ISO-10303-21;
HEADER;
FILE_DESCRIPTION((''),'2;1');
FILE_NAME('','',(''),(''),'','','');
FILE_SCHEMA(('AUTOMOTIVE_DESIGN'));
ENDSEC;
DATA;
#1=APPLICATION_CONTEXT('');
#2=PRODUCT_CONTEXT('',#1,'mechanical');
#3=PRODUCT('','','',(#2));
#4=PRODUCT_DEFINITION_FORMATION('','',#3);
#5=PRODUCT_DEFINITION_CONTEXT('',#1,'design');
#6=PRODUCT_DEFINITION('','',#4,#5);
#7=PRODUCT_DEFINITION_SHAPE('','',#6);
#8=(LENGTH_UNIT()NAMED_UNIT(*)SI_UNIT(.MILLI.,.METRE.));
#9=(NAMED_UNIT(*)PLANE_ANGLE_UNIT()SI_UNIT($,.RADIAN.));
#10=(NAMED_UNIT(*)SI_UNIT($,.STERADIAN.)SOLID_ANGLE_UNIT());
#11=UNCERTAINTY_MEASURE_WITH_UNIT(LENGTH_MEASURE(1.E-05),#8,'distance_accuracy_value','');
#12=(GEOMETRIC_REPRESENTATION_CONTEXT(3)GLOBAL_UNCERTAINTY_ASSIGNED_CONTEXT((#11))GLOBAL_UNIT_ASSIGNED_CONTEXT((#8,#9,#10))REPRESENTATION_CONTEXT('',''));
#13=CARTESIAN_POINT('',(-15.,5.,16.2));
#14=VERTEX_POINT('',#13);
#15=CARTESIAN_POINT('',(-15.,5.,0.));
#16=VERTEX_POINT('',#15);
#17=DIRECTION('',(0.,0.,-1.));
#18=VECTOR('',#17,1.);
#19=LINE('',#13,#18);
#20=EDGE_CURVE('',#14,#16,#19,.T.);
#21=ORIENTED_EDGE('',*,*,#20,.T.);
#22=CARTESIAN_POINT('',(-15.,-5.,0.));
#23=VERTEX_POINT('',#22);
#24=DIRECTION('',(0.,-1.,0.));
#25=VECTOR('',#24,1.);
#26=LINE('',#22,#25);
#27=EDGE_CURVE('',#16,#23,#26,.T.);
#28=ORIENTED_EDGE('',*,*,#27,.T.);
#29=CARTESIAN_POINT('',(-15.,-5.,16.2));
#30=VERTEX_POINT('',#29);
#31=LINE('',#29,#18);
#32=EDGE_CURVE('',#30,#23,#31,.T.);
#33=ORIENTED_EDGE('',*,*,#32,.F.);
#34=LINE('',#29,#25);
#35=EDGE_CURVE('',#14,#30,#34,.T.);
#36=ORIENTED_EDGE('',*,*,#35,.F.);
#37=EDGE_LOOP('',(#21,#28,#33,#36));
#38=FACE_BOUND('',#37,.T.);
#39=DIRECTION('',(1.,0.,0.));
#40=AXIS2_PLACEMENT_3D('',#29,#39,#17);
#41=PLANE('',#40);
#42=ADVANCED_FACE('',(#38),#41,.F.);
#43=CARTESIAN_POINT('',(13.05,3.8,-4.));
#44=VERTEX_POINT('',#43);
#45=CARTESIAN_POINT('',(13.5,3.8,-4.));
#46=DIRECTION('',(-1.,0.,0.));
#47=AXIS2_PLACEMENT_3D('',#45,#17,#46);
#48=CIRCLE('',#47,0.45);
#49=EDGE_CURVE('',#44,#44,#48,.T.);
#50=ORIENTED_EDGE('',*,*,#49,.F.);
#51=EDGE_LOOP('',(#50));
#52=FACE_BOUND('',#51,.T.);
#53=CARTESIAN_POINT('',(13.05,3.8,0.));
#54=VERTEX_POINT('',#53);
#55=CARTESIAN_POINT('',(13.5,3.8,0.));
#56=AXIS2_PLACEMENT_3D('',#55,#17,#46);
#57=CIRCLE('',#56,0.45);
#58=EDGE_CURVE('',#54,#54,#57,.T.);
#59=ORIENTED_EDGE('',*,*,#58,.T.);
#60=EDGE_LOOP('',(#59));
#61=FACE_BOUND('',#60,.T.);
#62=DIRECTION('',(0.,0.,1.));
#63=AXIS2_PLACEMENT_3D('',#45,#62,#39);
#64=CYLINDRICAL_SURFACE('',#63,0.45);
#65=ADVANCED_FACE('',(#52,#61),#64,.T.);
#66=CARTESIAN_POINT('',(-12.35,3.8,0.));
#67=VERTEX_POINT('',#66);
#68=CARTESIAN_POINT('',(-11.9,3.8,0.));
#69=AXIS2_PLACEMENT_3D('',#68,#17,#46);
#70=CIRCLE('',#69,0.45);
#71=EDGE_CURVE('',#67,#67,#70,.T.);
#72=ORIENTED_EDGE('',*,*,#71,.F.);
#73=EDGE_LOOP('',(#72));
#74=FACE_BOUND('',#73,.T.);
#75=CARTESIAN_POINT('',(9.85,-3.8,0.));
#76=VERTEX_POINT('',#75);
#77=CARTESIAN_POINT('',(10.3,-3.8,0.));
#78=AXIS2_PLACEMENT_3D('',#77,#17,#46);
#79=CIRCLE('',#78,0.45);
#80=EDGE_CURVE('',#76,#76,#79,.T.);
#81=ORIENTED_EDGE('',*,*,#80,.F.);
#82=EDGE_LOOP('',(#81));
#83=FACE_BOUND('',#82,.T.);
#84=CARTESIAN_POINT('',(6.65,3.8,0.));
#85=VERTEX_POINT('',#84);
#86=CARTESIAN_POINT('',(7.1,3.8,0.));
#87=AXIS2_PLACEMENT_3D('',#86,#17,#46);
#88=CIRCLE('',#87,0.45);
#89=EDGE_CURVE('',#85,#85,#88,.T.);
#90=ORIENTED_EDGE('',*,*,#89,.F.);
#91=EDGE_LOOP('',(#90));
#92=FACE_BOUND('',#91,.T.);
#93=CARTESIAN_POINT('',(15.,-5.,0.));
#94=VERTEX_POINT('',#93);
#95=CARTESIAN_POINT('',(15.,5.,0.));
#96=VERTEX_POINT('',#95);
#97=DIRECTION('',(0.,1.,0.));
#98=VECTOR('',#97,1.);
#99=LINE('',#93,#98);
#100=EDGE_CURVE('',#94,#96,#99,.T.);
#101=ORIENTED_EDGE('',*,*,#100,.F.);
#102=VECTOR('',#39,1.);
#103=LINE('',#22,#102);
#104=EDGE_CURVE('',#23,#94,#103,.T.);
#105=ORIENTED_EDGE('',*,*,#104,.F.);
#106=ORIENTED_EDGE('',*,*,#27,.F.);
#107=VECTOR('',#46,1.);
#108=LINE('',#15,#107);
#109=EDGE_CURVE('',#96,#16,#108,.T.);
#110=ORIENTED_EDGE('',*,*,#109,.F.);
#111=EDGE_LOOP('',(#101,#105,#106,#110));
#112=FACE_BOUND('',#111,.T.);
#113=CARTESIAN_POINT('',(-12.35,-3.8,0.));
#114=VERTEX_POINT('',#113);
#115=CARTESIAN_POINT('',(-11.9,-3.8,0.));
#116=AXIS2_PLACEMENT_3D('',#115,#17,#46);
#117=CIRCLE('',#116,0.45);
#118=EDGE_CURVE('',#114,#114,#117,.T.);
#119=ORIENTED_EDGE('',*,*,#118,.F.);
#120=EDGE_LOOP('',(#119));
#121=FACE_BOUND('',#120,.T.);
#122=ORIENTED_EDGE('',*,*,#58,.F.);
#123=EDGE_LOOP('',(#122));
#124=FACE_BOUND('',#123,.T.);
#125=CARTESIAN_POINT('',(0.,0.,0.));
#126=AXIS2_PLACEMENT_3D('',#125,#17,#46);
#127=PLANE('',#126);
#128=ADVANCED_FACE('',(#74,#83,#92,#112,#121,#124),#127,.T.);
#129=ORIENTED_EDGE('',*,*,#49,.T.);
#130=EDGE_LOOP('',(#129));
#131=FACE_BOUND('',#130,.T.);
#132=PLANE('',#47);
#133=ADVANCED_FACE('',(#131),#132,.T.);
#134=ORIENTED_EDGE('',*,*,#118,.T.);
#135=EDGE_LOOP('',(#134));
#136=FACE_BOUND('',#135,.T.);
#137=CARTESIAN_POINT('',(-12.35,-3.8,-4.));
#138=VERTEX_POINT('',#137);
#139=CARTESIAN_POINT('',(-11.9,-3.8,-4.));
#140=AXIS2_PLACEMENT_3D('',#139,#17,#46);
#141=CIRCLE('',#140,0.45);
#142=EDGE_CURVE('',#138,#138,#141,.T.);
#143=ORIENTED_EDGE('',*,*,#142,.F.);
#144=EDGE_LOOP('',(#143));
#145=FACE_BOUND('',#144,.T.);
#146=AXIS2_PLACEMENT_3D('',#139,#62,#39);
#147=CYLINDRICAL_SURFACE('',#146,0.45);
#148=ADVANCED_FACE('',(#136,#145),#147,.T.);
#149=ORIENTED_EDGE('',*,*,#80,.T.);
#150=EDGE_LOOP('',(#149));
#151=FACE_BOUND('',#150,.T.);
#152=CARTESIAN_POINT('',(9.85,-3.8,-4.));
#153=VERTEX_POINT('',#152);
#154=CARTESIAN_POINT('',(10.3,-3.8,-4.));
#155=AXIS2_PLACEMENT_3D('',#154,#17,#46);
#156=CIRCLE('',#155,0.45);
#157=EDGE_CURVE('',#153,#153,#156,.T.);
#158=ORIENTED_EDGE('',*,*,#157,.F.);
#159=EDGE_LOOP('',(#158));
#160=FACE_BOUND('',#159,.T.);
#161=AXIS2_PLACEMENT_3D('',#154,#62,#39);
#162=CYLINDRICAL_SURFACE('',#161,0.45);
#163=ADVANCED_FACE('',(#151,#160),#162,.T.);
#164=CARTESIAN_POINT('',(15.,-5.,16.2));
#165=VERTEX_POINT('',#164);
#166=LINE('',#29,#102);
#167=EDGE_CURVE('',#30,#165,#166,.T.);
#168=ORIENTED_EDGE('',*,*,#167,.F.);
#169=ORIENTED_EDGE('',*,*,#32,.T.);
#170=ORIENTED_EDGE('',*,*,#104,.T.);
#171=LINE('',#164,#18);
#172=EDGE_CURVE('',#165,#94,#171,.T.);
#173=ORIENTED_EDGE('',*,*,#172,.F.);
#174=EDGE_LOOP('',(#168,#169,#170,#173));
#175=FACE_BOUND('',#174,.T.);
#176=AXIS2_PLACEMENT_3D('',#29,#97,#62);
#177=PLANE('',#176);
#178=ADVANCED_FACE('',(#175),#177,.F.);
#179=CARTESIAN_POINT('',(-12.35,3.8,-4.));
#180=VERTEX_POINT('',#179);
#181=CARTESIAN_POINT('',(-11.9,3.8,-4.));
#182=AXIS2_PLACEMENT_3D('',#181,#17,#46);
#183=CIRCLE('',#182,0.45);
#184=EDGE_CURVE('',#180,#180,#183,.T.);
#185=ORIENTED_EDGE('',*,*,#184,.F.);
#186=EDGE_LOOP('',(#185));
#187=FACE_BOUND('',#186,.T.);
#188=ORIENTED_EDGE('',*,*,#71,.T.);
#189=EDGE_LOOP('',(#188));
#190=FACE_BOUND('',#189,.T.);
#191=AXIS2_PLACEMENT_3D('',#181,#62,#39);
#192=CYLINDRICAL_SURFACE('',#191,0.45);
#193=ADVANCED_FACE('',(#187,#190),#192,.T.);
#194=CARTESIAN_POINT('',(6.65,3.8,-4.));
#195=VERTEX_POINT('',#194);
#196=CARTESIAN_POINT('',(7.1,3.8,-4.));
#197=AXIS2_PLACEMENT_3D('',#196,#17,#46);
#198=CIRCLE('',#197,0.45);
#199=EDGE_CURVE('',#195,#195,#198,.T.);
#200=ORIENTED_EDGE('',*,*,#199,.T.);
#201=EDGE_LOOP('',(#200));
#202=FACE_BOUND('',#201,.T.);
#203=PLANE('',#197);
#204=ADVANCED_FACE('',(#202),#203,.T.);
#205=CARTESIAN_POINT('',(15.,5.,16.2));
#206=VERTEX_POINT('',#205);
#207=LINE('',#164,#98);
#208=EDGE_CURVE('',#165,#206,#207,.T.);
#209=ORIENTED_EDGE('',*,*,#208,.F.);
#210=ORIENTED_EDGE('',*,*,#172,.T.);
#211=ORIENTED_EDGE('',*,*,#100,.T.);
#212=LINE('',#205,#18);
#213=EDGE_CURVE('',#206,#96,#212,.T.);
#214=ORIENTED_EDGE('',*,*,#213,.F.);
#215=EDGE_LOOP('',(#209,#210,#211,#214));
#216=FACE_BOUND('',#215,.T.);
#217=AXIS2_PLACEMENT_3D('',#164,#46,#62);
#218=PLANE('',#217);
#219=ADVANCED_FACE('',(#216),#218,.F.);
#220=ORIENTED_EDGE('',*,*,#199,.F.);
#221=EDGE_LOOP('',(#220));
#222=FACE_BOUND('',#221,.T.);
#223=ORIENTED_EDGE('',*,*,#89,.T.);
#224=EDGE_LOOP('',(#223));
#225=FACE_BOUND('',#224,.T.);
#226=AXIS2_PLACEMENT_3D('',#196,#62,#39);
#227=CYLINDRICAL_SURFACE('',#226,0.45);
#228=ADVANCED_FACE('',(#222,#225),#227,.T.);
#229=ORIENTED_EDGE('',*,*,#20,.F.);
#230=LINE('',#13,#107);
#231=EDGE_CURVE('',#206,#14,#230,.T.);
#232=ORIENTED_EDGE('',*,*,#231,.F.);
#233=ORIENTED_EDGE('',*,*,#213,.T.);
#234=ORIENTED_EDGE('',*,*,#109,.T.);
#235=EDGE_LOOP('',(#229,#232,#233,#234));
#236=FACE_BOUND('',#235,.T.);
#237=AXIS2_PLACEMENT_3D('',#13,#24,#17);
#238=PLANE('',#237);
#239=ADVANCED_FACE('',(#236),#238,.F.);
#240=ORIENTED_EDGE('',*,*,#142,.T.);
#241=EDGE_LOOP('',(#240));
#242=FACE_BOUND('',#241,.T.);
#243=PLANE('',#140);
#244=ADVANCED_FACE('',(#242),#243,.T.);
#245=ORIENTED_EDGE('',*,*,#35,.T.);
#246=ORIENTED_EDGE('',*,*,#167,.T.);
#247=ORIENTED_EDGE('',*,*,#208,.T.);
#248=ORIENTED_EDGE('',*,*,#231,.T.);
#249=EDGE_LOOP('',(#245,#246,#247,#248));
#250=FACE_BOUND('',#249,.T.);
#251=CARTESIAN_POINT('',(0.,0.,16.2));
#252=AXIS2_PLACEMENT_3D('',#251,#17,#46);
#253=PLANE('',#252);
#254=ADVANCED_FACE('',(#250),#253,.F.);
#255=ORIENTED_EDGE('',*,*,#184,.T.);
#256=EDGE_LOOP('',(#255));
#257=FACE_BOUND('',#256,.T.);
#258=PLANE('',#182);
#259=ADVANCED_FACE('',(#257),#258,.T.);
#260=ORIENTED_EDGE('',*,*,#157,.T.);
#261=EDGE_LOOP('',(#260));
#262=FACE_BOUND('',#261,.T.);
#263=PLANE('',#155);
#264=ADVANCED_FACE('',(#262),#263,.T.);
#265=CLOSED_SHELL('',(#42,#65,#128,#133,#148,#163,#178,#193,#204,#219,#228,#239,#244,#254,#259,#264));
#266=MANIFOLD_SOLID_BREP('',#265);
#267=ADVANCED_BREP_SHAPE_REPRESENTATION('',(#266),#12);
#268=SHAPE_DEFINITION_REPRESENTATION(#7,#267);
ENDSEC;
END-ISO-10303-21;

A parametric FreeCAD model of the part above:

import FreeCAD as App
import Part
import Sketcher

V = App.Vector


def add_polygon(sketch, points):
    """Adds a closed chain of lines whose ends are joined by coincident constraints."""
    first, n = sketch.GeometryCount, len(points)
    for a, b in zip(points, points[1:] + points[:1]):
        sketch.addGeometry(Part.LineSegment(App.Vector(*a, 0), App.Vector(*b, 0)), False)
    for i in range(n):
        sketch.addConstraint(Sketcher.Constraint("Coincident", first + i, 2, first + (i + 1) % n, 1))

doc = App.newDocument("Part")
body = doc.addObject("PartDesign::Body", "Body")

# Sketch on XY plane
sketch1 = doc.addObject("Sketcher::SketchObject", "Sketch")
body.addObject(sketch1)
sketch1.AttachmentSupport = (doc.XY_Plane, [""])
sketch1.MapMode = "FlatFace"
add_polygon(sketch1, [(-15, 5), (-15, -5), (15, -5), (15, 5)])  # lines 0-3
sketch1.addConstraint([
    Sketcher.Constraint("Vertical", 0),
    Sketcher.Constraint("Horizontal", 1),
    Sketcher.Constraint("Vertical", 2),
    Sketcher.Constraint("Horizontal", 3),
    Sketcher.Constraint("Symmetric", 0, 2, 2, 2, -1, 1),
    Sketcher.Constraint("DistanceX", 1, 1, 1, 2, 30.0),
    Sketcher.Constraint("DistanceY", 0, 2, 0, 1, 10.0),
])
pad1 = doc.addObject("PartDesign::Pad", "Pad")
body.addObject(pad1)
pad1.Profile = sketch1
pad1.Length = 16.2

# Sketch on XY plane
sketch2 = doc.addObject("Sketcher::SketchObject", "Sketch001")
body.addObject(sketch2)
sketch2.AttachmentSupport = (doc.XY_Plane, [""])
sketch2.MapMode = "FlatFace"
sketch2.addGeometry([
    Part.Circle(V(13.5, 3.8, 0), V(0, 0, 1), 0.45),  # 0
    Part.Circle(V(7.1, 3.8, 0), V(0, 0, 1), 0.45),  # 1
    Part.Circle(V(10.3, -3.8, 0), V(0, 0, 1), 0.45),  # 2
    Part.Circle(V(-11.9, 3.8, 0), V(0, 0, 1), 0.45),  # 3
    Part.Circle(V(-11.9, -3.8, 0), V(0, 0, 1), 0.45),  # 4
], False)
sketch2.addConstraint([
    Sketcher.Constraint("Equal", 0, 1),
    Sketcher.Constraint("Equal", 1, 2),
    Sketcher.Constraint("Equal", 2, 3),
    Sketcher.Constraint("Equal", 3, 4),
    Sketcher.Constraint("Symmetric", 3, 3, 4, 3, -1),
    Sketcher.Constraint("Horizontal", 0, 3, 1, 3),
    Sketcher.Constraint("Horizontal", 1, 3, 3, 3),
    Sketcher.Constraint("Horizontal", 2, 3, 4, 3),
    Sketcher.Constraint("Diameter", 0, 0.9),
    Sketcher.Constraint("DistanceX", 3, 3, 1, 3, 19.0),
    Sketcher.Constraint("DistanceX", -1, 1, 0, 3, 13.5),
    Sketcher.Constraint("DistanceY", -1, 1, 0, 3, 3.8),
    Sketcher.Constraint("DistanceX", -1, 1, 1, 3, 7.1),
    Sketcher.Constraint("DistanceX", -1, 1, 2, 3, 10.3),
])
pad2 = doc.addObject("PartDesign::Pad", "Pad001")
body.addObject(pad2)
pad2.Profile = sketch2
pad2.Length = 4
pad2.Reversed = True

doc.recompute()
